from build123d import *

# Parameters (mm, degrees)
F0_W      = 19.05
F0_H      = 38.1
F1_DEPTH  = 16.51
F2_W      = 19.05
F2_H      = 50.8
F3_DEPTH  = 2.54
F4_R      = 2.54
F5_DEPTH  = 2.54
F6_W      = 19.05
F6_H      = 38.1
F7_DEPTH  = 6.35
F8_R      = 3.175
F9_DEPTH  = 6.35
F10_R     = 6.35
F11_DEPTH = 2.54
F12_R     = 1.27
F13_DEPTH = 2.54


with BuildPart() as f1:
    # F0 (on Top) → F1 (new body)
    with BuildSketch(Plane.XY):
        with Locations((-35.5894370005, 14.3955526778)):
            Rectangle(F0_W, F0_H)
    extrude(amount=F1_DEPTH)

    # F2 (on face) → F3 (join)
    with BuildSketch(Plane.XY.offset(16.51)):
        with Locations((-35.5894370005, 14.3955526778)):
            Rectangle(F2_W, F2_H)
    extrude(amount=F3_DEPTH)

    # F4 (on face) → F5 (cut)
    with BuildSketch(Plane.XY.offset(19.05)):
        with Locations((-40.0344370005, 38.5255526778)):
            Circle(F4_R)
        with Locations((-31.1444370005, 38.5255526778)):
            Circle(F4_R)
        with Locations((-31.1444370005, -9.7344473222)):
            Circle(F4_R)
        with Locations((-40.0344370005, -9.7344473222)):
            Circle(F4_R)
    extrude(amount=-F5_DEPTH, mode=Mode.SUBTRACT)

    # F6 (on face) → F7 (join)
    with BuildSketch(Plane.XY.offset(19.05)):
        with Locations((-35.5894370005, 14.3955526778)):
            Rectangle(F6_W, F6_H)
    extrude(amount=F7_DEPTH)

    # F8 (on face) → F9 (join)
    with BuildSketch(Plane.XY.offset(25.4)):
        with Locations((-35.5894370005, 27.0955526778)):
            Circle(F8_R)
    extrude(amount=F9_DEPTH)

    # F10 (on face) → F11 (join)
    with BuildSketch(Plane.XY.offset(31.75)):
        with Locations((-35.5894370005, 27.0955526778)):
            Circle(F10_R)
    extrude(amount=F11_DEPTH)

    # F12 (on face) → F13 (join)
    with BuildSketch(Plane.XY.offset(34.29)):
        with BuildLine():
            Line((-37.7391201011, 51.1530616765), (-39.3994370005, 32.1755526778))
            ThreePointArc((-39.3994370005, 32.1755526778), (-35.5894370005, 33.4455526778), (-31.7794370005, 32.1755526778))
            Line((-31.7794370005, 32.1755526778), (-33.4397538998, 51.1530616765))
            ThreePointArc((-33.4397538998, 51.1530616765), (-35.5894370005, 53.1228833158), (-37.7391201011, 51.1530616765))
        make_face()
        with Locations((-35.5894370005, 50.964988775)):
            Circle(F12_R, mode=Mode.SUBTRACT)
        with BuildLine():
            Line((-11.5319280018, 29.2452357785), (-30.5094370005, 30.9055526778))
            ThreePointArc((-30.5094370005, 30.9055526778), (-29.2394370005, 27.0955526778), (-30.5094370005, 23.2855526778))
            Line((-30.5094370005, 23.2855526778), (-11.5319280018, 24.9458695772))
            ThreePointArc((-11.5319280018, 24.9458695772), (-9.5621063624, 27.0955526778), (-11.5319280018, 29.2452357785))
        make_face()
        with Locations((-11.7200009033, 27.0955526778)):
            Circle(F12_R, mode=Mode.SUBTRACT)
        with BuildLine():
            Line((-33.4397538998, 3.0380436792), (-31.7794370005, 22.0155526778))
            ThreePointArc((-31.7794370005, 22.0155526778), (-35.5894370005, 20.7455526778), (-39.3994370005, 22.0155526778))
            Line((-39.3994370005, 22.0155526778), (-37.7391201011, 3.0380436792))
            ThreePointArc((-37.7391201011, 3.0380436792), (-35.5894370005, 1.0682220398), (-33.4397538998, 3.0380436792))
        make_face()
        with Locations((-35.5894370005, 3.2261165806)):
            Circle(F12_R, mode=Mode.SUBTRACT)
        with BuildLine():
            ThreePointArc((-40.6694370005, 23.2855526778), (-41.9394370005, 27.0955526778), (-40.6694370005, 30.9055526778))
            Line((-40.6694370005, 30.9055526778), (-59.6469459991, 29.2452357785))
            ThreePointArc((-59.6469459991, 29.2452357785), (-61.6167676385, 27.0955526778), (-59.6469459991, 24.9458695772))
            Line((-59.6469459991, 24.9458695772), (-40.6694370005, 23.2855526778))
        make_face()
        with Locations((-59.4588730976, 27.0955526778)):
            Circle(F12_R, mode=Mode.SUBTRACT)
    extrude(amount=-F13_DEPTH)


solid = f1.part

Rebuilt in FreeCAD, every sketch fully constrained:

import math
import FreeCAD as App
import Part
import Sketcher
from FreeCAD import Vector
Q = App.Units.Quantity

doc = App.newDocument("Part")
params = doc.addObject("Spreadsheet::Sheet", "Params")
for row, (alias, value) in enumerate([
    ("sketch1_height", "1.5 in"),
    ("sketch1_width", "0.75 in"),
    ("pad1_length", "0.65 in"),
    ("sketch2_height", "2 in"),
    ("sketch2_width", "0.75 in"),
    ("pad2_length", "0.1 in"),
    ("sketch3_diameter", "0.2 in"),
    ("pocket1_length", "0.1 in"),
    ("sketch4_height", "1.5 in"),
    ("sketch4_width", "0.75 in"),
    ("pad3_length", "0.25 in"),
    ("sketch5_diameter", "0.25 in"),
    ("pad4_length", "0.25 in"),
    ("sketch6_diameter", "0.5 in"),
    ("pad5_length", "0.1 in"),
    ("sketch7_diameter", "0.1 in"),
    ("sketch7_radius", "0.25 in"),
    ("sketch7_length", "0.75 in"),
    ("pad6_length", "0.1 in"),
], start=1):
    params.set(f"A{row}", alias)
    params.set(f"B{row}", "=" + value)
    params.setAlias(f"B{row}", alias)

body = doc.addObject("PartDesign::Body", "Body")

sketch1 = body.newObject("Sketcher::SketchObject", "Sketch")
sketch1.AttachmentSupport = (doc.getObject("XY_Plane"), [""])
sketch1.MapMode = "FlatFace"
sketch1.addGeometry(Part.LineSegment(Vector(-45.114437, 33.445553, 0), Vector(-45.114437, -4.654447, 0)), False)
sketch1.addGeometry(Part.LineSegment(Vector(-45.114437, -4.654447, 0), Vector(-26.064437, -4.654447, 0)), False)
sketch1.addGeometry(Part.LineSegment(Vector(-26.064437, -4.654447, 0), Vector(-26.064437, 33.445553, 0)), False)
sketch1.addGeometry(Part.LineSegment(Vector(-26.064437, 33.445553, 0), Vector(-45.114437, 33.445553, 0)), False)
sketch1.addConstraint(Sketcher.Constraint("Coincident", 0, 2, 1, 1))
sketch1.addConstraint(Sketcher.Constraint("Coincident", 1, 2, 2, 1))
sketch1.addConstraint(Sketcher.Constraint("Coincident", 2, 2, 3, 1))
sketch1.addConstraint(Sketcher.Constraint("Coincident", 3, 2, 0, 1))
sketch1.addConstraint(Sketcher.Constraint("Vertical", 0))
sketch1.addConstraint(Sketcher.Constraint("Horizontal", 1))
sketch1.addConstraint(Sketcher.Constraint("Vertical", 2))
sketch1.addConstraint(Sketcher.Constraint("Horizontal", 3))
sketch1.addConstraint(Sketcher.Constraint("DistanceY", 0, 2, 0, 1, Q("1.5 in")))
sketch1.addConstraint(Sketcher.Constraint("DistanceX", 1, 1, 1, 2, Q("0.75 in")))
sketch1.addConstraint(Sketcher.Constraint("DistanceX", 0, 2, -1, 1, Q("45.114437 mm")))
sketch1.addConstraint(Sketcher.Constraint("DistanceY", 0, 2, -1, 1, Q("4.654447 mm")))
sketch1.setExpression("Constraints[8]", "Params.sketch1_height")
sketch1.setExpression("Constraints[9]", "Params.sketch1_width")
pad1 = body.newObject("PartDesign::Pad", "Pad")
pad1.Profile = sketch1
pad1.setExpression("Length", "Params.pad1_length")

sketch2 = body.newObject("Sketcher::SketchObject", "Sketch001")
sketch2.AttachmentSupport = (doc.getObject("XY_Plane"), [""])
sketch2.MapMode = "FlatFace"
sketch2.AttachmentOffset = App.Placement(Vector(0, 0, 0.65 * 25.4), App.Rotation())
sketch2.addGeometry(Part.LineSegment(Vector(-45.114437, 39.795553, 0), Vector(-45.114437, -11.004447, 0)), False)
sketch2.addGeometry(Part.LineSegment(Vector(-45.114437, -11.004447, 0), Vector(-26.064437, -11.004447, 0)), False)
sketch2.addGeometry(Part.LineSegment(Vector(-26.064437, -11.004447, 0), Vector(-26.064437, 39.795553, 0)), False)
sketch2.addGeometry(Part.LineSegment(Vector(-26.064437, 39.795553, 0), Vector(-45.114437, 39.795553, 0)), False)
sketch2.addConstraint(Sketcher.Constraint("Coincident", 0, 2, 1, 1))
sketch2.addConstraint(Sketcher.Constraint("Coincident", 1, 2, 2, 1))
sketch2.addConstraint(Sketcher.Constraint("Coincident", 2, 2, 3, 1))
sketch2.addConstraint(Sketcher.Constraint("Coincident", 3, 2, 0, 1))
sketch2.addConstraint(Sketcher.Constraint("Vertical", 0))
sketch2.addConstraint(Sketcher.Constraint("Horizontal", 1))
sketch2.addConstraint(Sketcher.Constraint("Vertical", 2))
sketch2.addConstraint(Sketcher.Constraint("Horizontal", 3))
sketch2.addConstraint(Sketcher.Constraint("DistanceY", 0, 2, 0, 1, Q("2 in")))
sketch2.addConstraint(Sketcher.Constraint("DistanceX", 1, 1, 1, 2, Q("0.75 in")))
sketch2.addConstraint(Sketcher.Constraint("DistanceX", 0, 2, -1, 1, Q("45.114437 mm")))
sketch2.addConstraint(Sketcher.Constraint("DistanceY", 0, 2, -1, 1, Q("11.004447 mm")))
sketch2.setExpression("Constraints[8]", "Params.sketch2_height")
sketch2.setExpression("Constraints[9]", "Params.sketch2_width")
pad2 = body.newObject("PartDesign::Pad", "Pad001")
pad2.Profile = sketch2
pad2.setExpression("Length", "Params.pad2_length")

sketch3 = body.newObject("Sketcher::SketchObject", "Sketch002")
sketch3.AttachmentSupport = (doc.getObject("XY_Plane"), [""])
sketch3.MapMode = "FlatFace"
sketch3.AttachmentOffset = App.Placement(Vector(0, 0, 0.75 * 25.4), App.Rotation())
sketch3.addGeometry(Part.Circle(Vector(-40.034437, 38.525553, 0), Vector(0, 0, 1), 2.54), False)
sketch3.addGeometry(Part.Circle(Vector(-31.144437, 38.525553, 0), Vector(0, 0, 1), 2.54), False)
sketch3.addGeometry(Part.Circle(Vector(-31.144437, -9.734447, 0), Vector(0, 0, 1), 2.54), False)
sketch3.addGeometry(Part.Circle(Vector(-40.034437, -9.734447, 0), Vector(0, 0, 1), 2.54), False)
sketch3.addConstraint(Sketcher.Constraint("Equal", 0, 1))
sketch3.addConstraint(Sketcher.Constraint("Equal", 1, 2))
sketch3.addConstraint(Sketcher.Constraint("Equal", 2, 3))
sketch3.addConstraint(Sketcher.Constraint("Horizontal", 0, 3, 1, 3))
sketch3.addConstraint(Sketcher.Constraint("Horizontal", 2, 3, 3, 3))
sketch3.addConstraint(Sketcher.Constraint("Vertical", 1, 3, 2, 3))
sketch3.addConstraint(Sketcher.Constraint("Vertical", 0, 3, 3, 3))
sketch3.addConstraint(Sketcher.Constraint("Diameter", 0, Q("0.2 in")))
sketch3.addConstraint(Sketcher.Constraint("DistanceY", 2, 3, 1, 3, Q("1.9 in")))
sketch3.addConstraint(Sketcher.Constraint("DistanceX", 0, 3, 1, 3, Q("0.35 in")))
sketch3.addConstraint(Sketcher.Constraint("DistanceX", 0, 3, -1, 1, Q("40.034437 mm")))
sketch3.addConstraint(Sketcher.Constraint("DistanceY", -1, 1, 0, 3, Q("38.525553 mm")))
sketch3.setExpression("Constraints[7]", "Params.sketch3_diameter")
pocket1 = body.newObject("PartDesign::Pocket", "Pocket")
pocket1.Profile = sketch3
pocket1.setExpression("Length", "Params.pocket1_length")

sketch4 = body.newObject("Sketcher::SketchObject", "Sketch003")
sketch4.AttachmentSupport = (doc.getObject("XY_Plane"), [""])
sketch4.MapMode = "FlatFace"
sketch4.AttachmentOffset = App.Placement(Vector(0, 0, 0.75 * 25.4), App.Rotation())
sketch4.addGeometry(Part.LineSegment(Vector(-45.114437, 33.445553, 0), Vector(-45.114437, -4.654447, 0)), False)
sketch4.addGeometry(Part.LineSegment(Vector(-45.114437, -4.654447, 0), Vector(-26.064437, -4.654447, 0)), False)
sketch4.addGeometry(Part.LineSegment(Vector(-26.064437, -4.654447, 0), Vector(-26.064437, 33.445553, 0)), False)
sketch4.addGeometry(Part.LineSegment(Vector(-26.064437, 33.445553, 0), Vector(-45.114437, 33.445553, 0)), False)
sketch4.addConstraint(Sketcher.Constraint("Coincident", 0, 2, 1, 1))
sketch4.addConstraint(Sketcher.Constraint("Coincident", 1, 2, 2, 1))
sketch4.addConstraint(Sketcher.Constraint("Coincident", 2, 2, 3, 1))
sketch4.addConstraint(Sketcher.Constraint("Coincident", 3, 2, 0, 1))
sketch4.addConstraint(Sketcher.Constraint("Vertical", 0))
sketch4.addConstraint(Sketcher.Constraint("Horizontal", 1))
sketch4.addConstraint(Sketcher.Constraint("Vertical", 2))
sketch4.addConstraint(Sketcher.Constraint("Horizontal", 3))
sketch4.addConstraint(Sketcher.Constraint("DistanceY", 0, 2, 0, 1, Q("1.5 in")))
sketch4.addConstraint(Sketcher.Constraint("DistanceX", 1, 1, 1, 2, Q("0.75 in")))
sketch4.addConstraint(Sketcher.Constraint("DistanceX", 0, 2, -1, 1, Q("45.114437 mm")))
sketch4.addConstraint(Sketcher.Constraint("DistanceY", 0, 2, -1, 1, Q("4.654447 mm")))
sketch4.setExpression("Constraints[8]", "Params.sketch4_height")
sketch4.setExpression("Constraints[9]", "Params.sketch4_width")
pad3 = body.newObject("PartDesign::Pad", "Pad002")
pad3.Profile = sketch4
pad3.setExpression("Length", "Params.pad3_length")

sketch5 = body.newObject("Sketcher::SketchObject", "Sketch004")
sketch5.AttachmentSupport = (doc.getObject("XY_Plane"), [""])
sketch5.MapMode = "FlatFace"
sketch5.AttachmentOffset = App.Placement(Vector(0, 0, 1 * 25.4), App.Rotation())
sketch5.addGeometry(Part.Circle(Vector(-35.589437, 27.095553, 0), Vector(0, 0, 1), 3.175), False)
sketch5.addConstraint(Sketcher.Constraint("Diameter", 0, Q("0.25 in")))
sketch5.addConstraint(Sketcher.Constraint("DistanceX", 0, 3, -1, 1, Q("35.589437 mm")))
sketch5.addConstraint(Sketcher.Constraint("DistanceY", -1, 1, 0, 3, Q("27.095553 mm")))
sketch5.setExpression("Constraints[0]", "Params.sketch5_diameter")
pad4 = body.newObject("PartDesign::Pad", "Pad003")
pad4.Profile = sketch5
pad4.setExpression("Length", "Params.pad4_length")

sketch6 = body.newObject("Sketcher::SketchObject", "Sketch005")
sketch6.AttachmentSupport = (doc.getObject("XY_Plane"), [""])
sketch6.MapMode = "FlatFace"
sketch6.AttachmentOffset = App.Placement(Vector(0, 0, 1.25 * 25.4), App.Rotation())
sketch6.addGeometry(Part.Circle(Vector(-35.589437, 27.095553, 0), Vector(0, 0, 1), 6.35), False)
sketch6.addConstraint(Sketcher.Constraint("Diameter", 0, Q("0.5 in")))
sketch6.addConstraint(Sketcher.Constraint("DistanceX", 0, 3, -1, 1, Q("35.589437 mm")))
sketch6.addConstraint(Sketcher.Constraint("DistanceY", -1, 1, 0, 3, Q("27.095553 mm")))
sketch6.setExpression("Constraints[0]", "Params.sketch6_diameter")
pad5 = body.newObject("PartDesign::Pad", "Pad004")
pad5.Profile = sketch6
pad5.setExpression("Length", "Params.pad5_length")

sketch7 = body.newObject("Sketcher::SketchObject", "Sketch006")
sketch7.AttachmentSupport = (doc.getObject("XY_Plane"), [""])
sketch7.MapMode = "FlatFace"
sketch7.AttachmentOffset = App.Placement(Vector(0, 0, 1.35 * 25.4), App.Rotation())
sketch7.addGeometry(Part.LineSegment(Vector(-37.73912, 51.153062, 0), Vector(-39.399437, 32.175553, 0)), False)
sketch7.addGeometry(Part.ArcOfCircle(Part.Circle(Vector(-35.589437, 27.095553, 0), Vector(0, 0, 1), 6.35), math.radians(53.130102), math.radians(126.869898)), False)
sketch7.addGeometry(Part.LineSegment(Vector(-31.779437, 32.175553, 0), Vector(-33.439754, 51.153062, 0)), False)
sketch7.addGeometry(Part.ArcOfCircle(Part.Circle(Vector(-35.589437, 50.964989, 0), Vector(0, 0, 1), 2.157895), math.radians(5), math.radians(175)), False)
sketch7.addGeometry(Part.Circle(Vector(-35.589437, 50.964989, 0), Vector(0, 0, 1), 1.27), False)
sketch7.addGeometry(Part.LineSegment(Vector(-11.531928, 29.245236, 0), Vector(-30.509437, 30.905553, 0)), False)
sketch7.addGeometry(Part.ArcOfCircle(Part.Circle(Vector(-35.589437, 27.095553, 0), Vector(0, 0, 1), 6.35), math.radians(-36.869898), math.radians(36.869898)), False)
sketch7.addGeometry(Part.LineSegment(Vector(-30.509437, 23.285553, 0), Vector(-11.531928, 24.94587, 0)), False)
sketch7.addGeometry(Part.ArcOfCircle(Part.Circle(Vector(-11.720001, 27.095553, 0), Vector(0, 0, 1), 2.157895), math.radians(-85), math.radians(85)), False)
sketch7.addGeometry(Part.Circle(Vector(-11.720001, 27.095553, 0), Vector(0, 0, 1), 1.27), False)
sketch7.addGeometry(Part.LineSegment(Vector(-33.439754, 3.038044, 0), Vector(-31.779437, 22.015553, 0)), False)
sketch7.addGeometry(Part.ArcOfCircle(Part.Circle(Vector(-35.589437, 27.095553, 0), Vector(0, 0, 1), 6.35), math.radians(-126.869898), math.radians(-53.130102)), False)
sketch7.addGeometry(Part.LineSegment(Vector(-39.399437, 22.015553, 0), Vector(-37.73912, 3.038044, 0)), False)
sketch7.addGeometry(Part.ArcOfCircle(Part.Circle(Vector(-35.589437, 3.226117, 0), Vector(0, 0, 1), 2.157895), math.radians(-175), math.radians(-5)), False)
sketch7.addGeometry(Part.Circle(Vector(-35.589437, 3.226117, 0), Vector(0, 0, 1), 1.27), False)
sketch7.addGeometry(Part.ArcOfCircle(Part.Circle(Vector(-35.589437, 27.095553, 0), Vector(0, 0, 1), 6.35), math.radians(143.130102), math.radians(216.869898)), False)
sketch7.addGeometry(Part.LineSegment(Vector(-40.669437, 30.905553, 0), Vector(-59.646946, 29.245236, 0)), False)
sketch7.addGeometry(Part.ArcOfCircle(Part.Circle(Vector(-59.458873, 27.095553, 0), Vector(0, 0, 1), 2.157895), math.radians(95), math.radians(265)), False)
sketch7.addGeometry(Part.LineSegment(Vector(-59.646946, 24.94587, 0), Vector(-40.669437, 23.285553, 0)), False)
sketch7.addGeometry(Part.Circle(Vector(-59.458873, 27.095553, 0), Vector(0, 0, 1), 1.27), False)
sketch7.addConstraint(Sketcher.Constraint("Coincident", 0, 2, 1, 2))
sketch7.addConstraint(Sketcher.Constraint("Coincident", 1, 1, 2, 1))
sketch7.addConstraint(Sketcher.Constraint("Tangent", 2, 2, 3, 1))
sketch7.addConstraint(Sketcher.Constraint("Tangent", 3, 2, 0, 1))
sketch7.addConstraint(Sketcher.Constraint("Coincident", 5, 2, 6, 2))
sketch7.addConstraint(Sketcher.Constraint("Coincident", 6, 1, 7, 1))
sketch7.addConstraint(Sketcher.Constraint("Tangent", 7, 2, 8, 1))
sketch7.addConstraint(Sketcher.Constraint("Tangent", 8, 2, 5, 1))
sketch7.addConstraint(Sketcher.Constraint("Coincident", 10, 2, 11, 2))
sketch7.addConstraint(Sketcher.Constraint("Coincident", 11, 1, 12, 1))
sketch7.addConstraint(Sketcher.Constraint("Tangent", 12, 2, 13, 1))
sketch7.addConstraint(Sketcher.Constraint("Tangent", 13, 2, 10, 1))
sketch7.addConstraint(Sketcher.Constraint("Coincident", 15, 1, 16, 1))
sketch7.addConstraint(Sketcher.Constraint("Tangent", 16, 2, 17, 1))
sketch7.addConstraint(Sketcher.Constraint("Tangent", 17, 2, 18, 1))
sketch7.addConstraint(Sketcher.Constraint("Coincident", 18, 2, 15, 2))
sketch7.addConstraint(Sketcher.Constraint("Coincident", 4, 3, 3, 3))
sketch7.addConstraint(Sketcher.Constraint("Coincident", 6, 3, 1, 3))
sketch7.addConstraint(Sketcher.Constraint("Coincident", 9, 3, 8, 3))
sketch7.addConstraint(Sketcher.Constraint("Coincident", 11, 3, 1, 3))
sketch7.addConstraint(Sketcher.Constraint("Coincident", 14, 3, 13, 3))
sketch7.addConstraint(Sketcher.Constraint("Coincident", 15, 3, 1, 3))
sketch7.addConstraint(Sketcher.Constraint("Coincident", 19, 3, 17, 3))
sketch7.addConstraint(Sketcher.Constraint("Equal", 1, 6))
sketch7.addConstraint(Sketcher.Constraint("Equal", 3, 8))
sketch7.addConstraint(Sketcher.Constraint("Equal", 4, 9))
sketch7.addConstraint(Sketcher.Constraint("Equal", 6, 11))
sketch7.addConstraint(Sketcher.Constraint("Equal", 8, 13))
sketch7.addConstraint(Sketcher.Constraint("Equal", 9, 14))
sketch7.addConstraint(Sketcher.Constraint("Equal", 11, 15))
sketch7.addConstraint(Sketcher.Constraint("Equal", 13, 17))
sketch7.addConstraint(Sketcher.Constraint("Equal", 14, 19))
sketch7.addConstraint(Sketcher.Constraint("Perpendicular", 0, 5))
sketch7.addConstraint(Sketcher.Constraint("Perpendicular", 2, 7))
sketch7.addConstraint(Sketcher.Constraint("Perpendicular", 5, 10))
sketch7.addConstraint(Sketcher.Constraint("Perpendicular", 7, 12))
sketch7.addConstraint(Sketcher.Constraint("Perpendicular", 12, 16))
sketch7.addConstraint(Sketcher.Constraint("Perpendicular", 10, 18))
sketch7.addConstraint(Sketcher.Constraint("Horizontal", 6, 3, 8, 3))
sketch7.addConstraint(Sketcher.Constraint("Horizontal", 15, 3, 17, 3))
sketch7.addConstraint(Sketcher.Constraint("Horizontal", 0, 2, 1, 1))
sketch7.addConstraint(Sketcher.Constraint("Horizontal", 2, 2, 3, 2))
sketch7.addConstraint(Sketcher.Constraint("Horizontal", 10, 2, 11, 1))
sketch7.addConstraint(Sketcher.Constraint("Horizontal", 5, 2, 15, 1))
sketch7.addConstraint(Sketcher.Constraint("Vertical", 1, 1, 10, 2))
sketch7.addConstraint(Sketcher.Constraint("Equal", 2, 5))
sketch7.addConstraint(Sketcher.Constraint("Diameter", 4, Q("0.1 in")))
sketch7.addConstraint(Sketcher.Constraint("Radius", 1, Q("0.25 in")))
sketch7.addConstraint(Sketcher.Constraint("Angle", 0, Q("-95 deg")))
sketch7.addConstraint(Sketcher.Constraint("DistanceY", 6, 3, 0, 2, Q("0.2 in")))
sketch7.addConstraint(Sketcher.Constraint("Distance", 0, Q("0.75 in")))
sketch7.addConstraint(Sketcher.Constraint("DistanceY", -1, 1, 2, 2, Q("2.0139001 in")))
sketch7.addConstraint(Sketcher.Constraint("DistanceX", 8, 3, -1, 1, Q("11.720001 mm")))
sketch7.setExpression("Constraints[46]", "Params.sketch7_diameter")
sketch7.setExpression("Constraints[47]", "Params.sketch7_radius")
sketch7.setExpression("Constraints[50]", "Params.sketch7_length")
pad6 = body.newObject("PartDesign::Pad", "Pad005")
pad6.Profile = sketch7
pad6.setExpression("Length", "Params.pad6_length")
pad6.Reversed = True

doc.recompute()
